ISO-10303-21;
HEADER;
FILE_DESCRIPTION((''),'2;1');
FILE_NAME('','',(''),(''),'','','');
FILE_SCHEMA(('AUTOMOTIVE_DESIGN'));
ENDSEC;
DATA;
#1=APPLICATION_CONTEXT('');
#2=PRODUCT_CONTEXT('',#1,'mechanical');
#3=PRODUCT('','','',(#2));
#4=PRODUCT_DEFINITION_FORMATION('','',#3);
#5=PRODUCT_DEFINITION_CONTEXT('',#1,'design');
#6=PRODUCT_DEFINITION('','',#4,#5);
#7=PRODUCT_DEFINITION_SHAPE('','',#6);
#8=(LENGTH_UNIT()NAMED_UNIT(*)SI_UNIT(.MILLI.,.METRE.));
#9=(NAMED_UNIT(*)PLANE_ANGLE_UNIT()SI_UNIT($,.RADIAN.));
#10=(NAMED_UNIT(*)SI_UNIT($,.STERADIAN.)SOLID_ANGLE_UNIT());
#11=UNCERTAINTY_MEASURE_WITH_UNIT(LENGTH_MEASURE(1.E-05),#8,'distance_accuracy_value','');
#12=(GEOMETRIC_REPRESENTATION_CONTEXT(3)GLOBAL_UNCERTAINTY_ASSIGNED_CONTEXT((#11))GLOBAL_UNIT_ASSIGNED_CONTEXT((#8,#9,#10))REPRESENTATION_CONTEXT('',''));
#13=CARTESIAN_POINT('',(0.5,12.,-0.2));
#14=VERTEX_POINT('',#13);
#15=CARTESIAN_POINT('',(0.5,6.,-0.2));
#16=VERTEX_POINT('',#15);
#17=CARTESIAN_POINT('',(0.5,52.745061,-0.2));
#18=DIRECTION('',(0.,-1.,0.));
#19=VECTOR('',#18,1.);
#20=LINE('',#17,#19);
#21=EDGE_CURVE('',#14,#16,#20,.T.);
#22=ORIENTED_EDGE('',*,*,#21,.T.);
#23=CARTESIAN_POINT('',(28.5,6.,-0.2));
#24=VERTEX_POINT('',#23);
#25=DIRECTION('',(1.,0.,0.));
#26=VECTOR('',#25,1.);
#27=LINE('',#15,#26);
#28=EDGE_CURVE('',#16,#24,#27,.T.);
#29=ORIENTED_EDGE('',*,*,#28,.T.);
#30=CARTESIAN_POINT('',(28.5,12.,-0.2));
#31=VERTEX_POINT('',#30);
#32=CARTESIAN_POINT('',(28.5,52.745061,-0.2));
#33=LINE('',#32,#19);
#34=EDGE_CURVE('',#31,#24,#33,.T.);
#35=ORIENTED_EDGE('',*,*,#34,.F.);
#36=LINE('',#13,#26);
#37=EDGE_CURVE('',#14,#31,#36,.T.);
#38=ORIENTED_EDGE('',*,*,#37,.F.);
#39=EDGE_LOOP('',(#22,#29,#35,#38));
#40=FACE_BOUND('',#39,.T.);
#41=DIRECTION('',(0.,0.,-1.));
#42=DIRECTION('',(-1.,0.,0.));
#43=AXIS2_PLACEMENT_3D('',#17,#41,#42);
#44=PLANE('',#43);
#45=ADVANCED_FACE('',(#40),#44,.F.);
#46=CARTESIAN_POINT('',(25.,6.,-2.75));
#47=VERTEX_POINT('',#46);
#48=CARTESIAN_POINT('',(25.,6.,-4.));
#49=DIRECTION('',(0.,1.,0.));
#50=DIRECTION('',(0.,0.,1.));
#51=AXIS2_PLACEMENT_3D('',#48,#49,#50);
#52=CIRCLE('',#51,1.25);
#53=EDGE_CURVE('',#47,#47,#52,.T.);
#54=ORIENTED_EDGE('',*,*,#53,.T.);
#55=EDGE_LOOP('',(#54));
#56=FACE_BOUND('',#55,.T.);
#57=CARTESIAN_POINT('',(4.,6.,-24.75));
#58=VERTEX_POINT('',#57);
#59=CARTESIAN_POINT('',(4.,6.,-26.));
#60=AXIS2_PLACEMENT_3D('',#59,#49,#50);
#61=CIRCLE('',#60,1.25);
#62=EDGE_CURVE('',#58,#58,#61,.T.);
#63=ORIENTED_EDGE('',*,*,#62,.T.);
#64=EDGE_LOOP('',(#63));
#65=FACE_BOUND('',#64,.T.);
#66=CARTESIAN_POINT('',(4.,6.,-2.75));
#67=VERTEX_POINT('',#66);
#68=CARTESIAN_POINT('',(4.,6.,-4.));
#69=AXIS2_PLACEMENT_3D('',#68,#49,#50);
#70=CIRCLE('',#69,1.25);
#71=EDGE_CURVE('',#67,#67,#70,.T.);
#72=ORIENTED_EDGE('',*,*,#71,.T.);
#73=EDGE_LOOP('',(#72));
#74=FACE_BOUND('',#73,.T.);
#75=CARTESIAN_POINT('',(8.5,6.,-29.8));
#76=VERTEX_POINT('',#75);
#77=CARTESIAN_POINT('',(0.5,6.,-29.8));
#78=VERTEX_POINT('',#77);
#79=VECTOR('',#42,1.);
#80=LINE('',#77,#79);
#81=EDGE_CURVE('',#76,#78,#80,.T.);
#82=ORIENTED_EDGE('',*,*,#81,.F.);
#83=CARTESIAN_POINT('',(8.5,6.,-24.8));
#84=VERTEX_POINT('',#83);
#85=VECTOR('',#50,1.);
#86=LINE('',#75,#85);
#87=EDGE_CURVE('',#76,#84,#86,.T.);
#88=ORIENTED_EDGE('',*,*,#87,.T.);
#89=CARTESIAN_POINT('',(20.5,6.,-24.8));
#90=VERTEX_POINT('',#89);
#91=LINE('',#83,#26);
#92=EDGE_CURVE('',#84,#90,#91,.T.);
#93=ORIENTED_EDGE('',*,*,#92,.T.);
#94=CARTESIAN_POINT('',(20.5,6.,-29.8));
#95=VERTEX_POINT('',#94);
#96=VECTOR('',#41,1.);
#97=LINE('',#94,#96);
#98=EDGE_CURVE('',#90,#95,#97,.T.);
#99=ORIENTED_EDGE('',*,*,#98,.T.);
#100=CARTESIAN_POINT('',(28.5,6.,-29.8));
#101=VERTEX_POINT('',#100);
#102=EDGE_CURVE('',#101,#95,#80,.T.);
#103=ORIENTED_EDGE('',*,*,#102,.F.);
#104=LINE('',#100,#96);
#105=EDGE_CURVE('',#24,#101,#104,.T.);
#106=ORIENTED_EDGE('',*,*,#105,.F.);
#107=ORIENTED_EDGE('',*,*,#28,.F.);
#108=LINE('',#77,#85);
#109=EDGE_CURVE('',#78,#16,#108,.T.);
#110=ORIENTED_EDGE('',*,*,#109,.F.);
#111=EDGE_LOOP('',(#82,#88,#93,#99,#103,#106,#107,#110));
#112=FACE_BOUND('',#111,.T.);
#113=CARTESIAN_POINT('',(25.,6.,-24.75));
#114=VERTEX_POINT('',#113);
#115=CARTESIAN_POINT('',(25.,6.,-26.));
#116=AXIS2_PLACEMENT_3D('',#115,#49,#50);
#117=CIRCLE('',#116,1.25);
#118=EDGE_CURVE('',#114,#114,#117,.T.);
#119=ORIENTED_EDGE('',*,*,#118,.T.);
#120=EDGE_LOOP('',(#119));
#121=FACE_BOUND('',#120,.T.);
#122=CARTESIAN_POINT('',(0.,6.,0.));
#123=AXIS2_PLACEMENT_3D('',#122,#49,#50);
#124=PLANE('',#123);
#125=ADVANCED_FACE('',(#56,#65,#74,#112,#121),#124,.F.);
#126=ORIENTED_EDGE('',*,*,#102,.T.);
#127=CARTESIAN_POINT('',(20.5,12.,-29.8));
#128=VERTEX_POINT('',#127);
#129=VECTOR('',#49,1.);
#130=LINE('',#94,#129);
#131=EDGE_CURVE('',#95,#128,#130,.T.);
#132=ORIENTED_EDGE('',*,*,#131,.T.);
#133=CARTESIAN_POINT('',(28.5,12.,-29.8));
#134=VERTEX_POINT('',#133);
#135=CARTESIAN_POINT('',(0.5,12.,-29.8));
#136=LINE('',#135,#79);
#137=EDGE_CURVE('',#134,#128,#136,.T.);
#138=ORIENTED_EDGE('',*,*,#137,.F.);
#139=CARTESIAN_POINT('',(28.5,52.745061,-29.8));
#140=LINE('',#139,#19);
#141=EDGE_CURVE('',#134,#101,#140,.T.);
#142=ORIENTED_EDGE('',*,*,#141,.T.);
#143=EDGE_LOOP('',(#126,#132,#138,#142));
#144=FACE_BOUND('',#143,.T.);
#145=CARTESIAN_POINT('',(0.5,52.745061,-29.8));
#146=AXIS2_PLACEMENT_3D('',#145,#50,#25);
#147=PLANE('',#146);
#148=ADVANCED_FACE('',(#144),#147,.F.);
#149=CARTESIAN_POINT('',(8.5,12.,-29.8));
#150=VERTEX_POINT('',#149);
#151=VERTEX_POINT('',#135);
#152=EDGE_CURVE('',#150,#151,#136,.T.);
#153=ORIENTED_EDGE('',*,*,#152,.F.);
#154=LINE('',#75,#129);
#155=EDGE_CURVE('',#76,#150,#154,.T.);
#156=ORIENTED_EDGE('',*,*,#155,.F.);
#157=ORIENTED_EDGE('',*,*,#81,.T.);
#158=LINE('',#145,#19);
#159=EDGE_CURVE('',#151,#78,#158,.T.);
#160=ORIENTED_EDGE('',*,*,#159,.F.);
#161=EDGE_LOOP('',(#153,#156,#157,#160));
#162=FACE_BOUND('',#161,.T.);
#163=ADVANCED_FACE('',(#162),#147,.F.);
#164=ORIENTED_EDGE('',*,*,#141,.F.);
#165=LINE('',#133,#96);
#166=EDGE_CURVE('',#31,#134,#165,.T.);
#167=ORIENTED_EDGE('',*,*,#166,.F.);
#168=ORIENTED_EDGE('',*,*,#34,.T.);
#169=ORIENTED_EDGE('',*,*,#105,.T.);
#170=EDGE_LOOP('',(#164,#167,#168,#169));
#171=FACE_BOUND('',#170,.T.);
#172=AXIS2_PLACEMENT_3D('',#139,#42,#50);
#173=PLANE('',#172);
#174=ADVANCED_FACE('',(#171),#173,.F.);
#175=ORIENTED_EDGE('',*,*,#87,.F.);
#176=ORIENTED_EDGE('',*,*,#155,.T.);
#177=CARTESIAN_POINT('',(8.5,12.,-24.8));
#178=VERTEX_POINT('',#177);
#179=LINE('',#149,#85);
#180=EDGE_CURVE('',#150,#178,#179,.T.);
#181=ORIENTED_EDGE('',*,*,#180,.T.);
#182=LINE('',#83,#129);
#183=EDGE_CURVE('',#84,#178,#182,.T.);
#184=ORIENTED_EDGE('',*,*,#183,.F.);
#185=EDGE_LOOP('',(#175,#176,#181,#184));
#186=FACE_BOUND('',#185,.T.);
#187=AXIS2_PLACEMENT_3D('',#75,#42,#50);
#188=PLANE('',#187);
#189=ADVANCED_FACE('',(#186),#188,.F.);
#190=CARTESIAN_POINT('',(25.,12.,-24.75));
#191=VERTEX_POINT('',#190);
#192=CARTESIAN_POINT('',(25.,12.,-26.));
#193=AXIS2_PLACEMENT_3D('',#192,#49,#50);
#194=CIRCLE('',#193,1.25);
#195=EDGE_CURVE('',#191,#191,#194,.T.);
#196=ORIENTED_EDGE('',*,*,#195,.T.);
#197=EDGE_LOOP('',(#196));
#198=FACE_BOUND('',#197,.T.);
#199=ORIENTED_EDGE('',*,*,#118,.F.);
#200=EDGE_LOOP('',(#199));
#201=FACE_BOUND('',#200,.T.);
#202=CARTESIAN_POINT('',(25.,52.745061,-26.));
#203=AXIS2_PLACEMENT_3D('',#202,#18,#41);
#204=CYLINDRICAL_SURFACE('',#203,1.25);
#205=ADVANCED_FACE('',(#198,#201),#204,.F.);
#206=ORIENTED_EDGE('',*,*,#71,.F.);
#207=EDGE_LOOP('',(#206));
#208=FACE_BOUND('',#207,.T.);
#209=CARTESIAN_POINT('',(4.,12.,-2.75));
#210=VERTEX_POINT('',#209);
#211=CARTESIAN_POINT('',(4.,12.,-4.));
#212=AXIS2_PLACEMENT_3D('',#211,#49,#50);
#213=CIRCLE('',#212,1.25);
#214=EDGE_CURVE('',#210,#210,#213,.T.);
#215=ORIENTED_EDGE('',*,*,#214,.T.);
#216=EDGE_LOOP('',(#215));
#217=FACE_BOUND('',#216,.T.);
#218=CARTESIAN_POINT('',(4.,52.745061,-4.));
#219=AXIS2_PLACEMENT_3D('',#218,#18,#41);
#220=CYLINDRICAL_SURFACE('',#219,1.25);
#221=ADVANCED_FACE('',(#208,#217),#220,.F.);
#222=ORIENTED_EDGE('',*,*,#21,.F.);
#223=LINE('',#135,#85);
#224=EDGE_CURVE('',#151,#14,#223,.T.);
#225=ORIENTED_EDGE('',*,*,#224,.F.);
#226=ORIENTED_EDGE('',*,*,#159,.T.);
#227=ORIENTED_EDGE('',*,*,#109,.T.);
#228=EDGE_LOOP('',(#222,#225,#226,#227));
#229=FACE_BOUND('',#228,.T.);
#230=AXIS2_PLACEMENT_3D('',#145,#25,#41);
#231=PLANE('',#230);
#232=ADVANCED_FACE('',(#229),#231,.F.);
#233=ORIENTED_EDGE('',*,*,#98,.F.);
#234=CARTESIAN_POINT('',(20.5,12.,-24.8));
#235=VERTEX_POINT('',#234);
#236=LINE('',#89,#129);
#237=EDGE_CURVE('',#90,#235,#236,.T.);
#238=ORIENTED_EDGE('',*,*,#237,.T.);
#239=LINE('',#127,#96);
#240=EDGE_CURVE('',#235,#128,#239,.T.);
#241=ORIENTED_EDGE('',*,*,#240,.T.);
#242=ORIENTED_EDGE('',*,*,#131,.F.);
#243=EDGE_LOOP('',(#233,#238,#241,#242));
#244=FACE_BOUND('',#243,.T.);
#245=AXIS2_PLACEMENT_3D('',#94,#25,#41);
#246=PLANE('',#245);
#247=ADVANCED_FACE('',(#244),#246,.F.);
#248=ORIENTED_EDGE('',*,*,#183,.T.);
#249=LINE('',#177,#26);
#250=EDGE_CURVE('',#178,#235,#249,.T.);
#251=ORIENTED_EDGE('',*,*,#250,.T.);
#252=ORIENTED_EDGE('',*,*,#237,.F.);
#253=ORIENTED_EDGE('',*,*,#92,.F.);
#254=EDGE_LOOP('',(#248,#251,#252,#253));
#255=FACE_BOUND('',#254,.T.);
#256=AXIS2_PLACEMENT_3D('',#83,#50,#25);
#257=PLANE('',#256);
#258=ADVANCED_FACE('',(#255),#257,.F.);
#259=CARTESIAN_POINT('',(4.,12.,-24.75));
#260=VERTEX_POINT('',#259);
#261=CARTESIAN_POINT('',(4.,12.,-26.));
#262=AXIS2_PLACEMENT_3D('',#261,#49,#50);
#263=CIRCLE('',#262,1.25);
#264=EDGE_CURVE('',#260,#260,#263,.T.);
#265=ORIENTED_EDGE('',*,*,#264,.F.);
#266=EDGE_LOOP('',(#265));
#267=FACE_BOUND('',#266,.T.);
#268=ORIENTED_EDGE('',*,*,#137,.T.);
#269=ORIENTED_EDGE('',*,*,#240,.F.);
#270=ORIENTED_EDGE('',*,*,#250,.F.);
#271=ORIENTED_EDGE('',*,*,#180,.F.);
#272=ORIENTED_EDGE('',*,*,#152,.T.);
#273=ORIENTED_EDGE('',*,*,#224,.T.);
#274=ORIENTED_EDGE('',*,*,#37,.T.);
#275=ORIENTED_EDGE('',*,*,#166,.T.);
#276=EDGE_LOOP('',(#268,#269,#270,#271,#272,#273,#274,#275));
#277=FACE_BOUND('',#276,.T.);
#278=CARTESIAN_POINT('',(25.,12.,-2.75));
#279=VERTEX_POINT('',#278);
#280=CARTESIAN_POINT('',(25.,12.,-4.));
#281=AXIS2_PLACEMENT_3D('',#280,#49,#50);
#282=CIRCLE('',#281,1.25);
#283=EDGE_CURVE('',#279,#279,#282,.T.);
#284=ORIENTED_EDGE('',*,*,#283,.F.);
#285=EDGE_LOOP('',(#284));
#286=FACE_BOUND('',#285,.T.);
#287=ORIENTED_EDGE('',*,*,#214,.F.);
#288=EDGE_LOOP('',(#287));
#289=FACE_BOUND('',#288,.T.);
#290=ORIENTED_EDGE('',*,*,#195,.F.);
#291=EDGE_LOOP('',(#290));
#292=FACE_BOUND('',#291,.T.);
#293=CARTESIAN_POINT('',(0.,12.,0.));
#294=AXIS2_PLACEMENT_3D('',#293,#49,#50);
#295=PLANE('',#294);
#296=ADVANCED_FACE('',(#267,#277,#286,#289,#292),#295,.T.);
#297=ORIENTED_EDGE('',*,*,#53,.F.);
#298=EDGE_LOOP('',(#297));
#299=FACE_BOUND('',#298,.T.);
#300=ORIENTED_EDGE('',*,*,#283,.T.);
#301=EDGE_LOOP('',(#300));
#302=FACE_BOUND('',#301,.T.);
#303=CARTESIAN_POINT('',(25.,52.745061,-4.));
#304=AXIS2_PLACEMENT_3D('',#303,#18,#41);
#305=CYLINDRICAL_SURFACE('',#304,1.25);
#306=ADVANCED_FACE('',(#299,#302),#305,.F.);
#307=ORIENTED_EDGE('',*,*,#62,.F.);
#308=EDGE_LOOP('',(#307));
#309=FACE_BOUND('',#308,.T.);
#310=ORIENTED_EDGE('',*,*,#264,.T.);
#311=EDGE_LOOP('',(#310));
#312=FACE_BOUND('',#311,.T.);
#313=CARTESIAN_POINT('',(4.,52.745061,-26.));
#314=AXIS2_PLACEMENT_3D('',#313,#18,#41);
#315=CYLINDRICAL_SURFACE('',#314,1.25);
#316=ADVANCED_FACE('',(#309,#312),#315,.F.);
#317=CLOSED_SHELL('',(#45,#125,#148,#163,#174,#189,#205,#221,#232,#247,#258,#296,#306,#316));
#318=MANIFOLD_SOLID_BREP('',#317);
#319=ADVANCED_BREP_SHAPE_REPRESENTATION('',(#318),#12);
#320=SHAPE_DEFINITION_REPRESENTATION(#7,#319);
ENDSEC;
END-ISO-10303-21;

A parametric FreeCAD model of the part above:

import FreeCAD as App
import Part
import Sketcher
Q = App.Units.Quantity


def add_polygon(sketch, points):
    """Adds a closed chain of lines whose ends are joined by coincident constraints."""
    first, n = sketch.GeometryCount, len(points)
    for a, b in zip(points, points[1:] + points[:1]):
        sketch.addGeometry(Part.LineSegment(App.Vector(*a, 0), App.Vector(*b, 0)), False)
    for i in range(n):
        sketch.addConstraint(Sketcher.Constraint("Coincident", first + i, 2, first + (i + 1) % n, 1))

doc = App.newDocument("Part")
body = doc.addObject("PartDesign::Body", "Body")

# Sketch on XZ plane
sketch1 = body.newObject("Sketcher::SketchObject", "Sketch")
sketch1.AttachmentSupport = (doc.getObject("XZ_Plane"), [""])
sketch1.MapMode = "FlatFace"
sketch1.AttachmentOffset = App.Placement(App.Vector(0, 0, -6), App.Rotation())
add_polygon(sketch1, [(0.5, -29.8), (0.5, -0.2), (28.5, -0.2), (28.5, -29.8)])  # lines 0-3
sketch1.addGeometry(Part.Circle(App.Vector(4, -4, 0), App.Vector(0, 0, 1), 1.2), False)  # 4
sketch1.addGeometry(Part.Circle(App.Vector(25, -4, 0), App.Vector(0, 0, 1), 1.2), False)  # 5
sketch1.addGeometry(Part.Circle(App.Vector(4, -26, 0), App.Vector(0, 0, 1), 1.2), False)  # 6
sketch1.addGeometry(Part.Circle(App.Vector(25, -26, 0), App.Vector(0, 0, 1), 1.2), False)  # 7
sketch1.addConstraint([
    Sketcher.Constraint("Vertical", 0),
    Sketcher.Constraint("Horizontal", 1),
    Sketcher.Constraint("Vertical", 2),
    Sketcher.Constraint("Horizontal", 3),
    Sketcher.Constraint("Equal", 4, 5),
    Sketcher.Constraint("Equal", 5, 6),
    Sketcher.Constraint("Equal", 6, 7),
    Sketcher.Constraint("Horizontal", 4, 3, 5, 3),
    Sketcher.Constraint("Horizontal", 6, 3, 7, 3),
    Sketcher.Constraint("Vertical", 4, 3, 6, 3),
    Sketcher.Constraint("Vertical", 5, 3, 7, 3),
    Sketcher.Constraint("Diameter", 4, Q("2.5 mm")),
    Sketcher.Constraint("DistanceX", 1, 1, 1, 2, Q("28 mm")),
    Sketcher.Constraint("DistanceY", 0, 1, 0, 2, Q("29.6 mm")),
    Sketcher.Constraint("DistanceX", -1, 1, 4, 3, Q("4 mm")),
    Sketcher.Constraint("DistanceY", 4, 3, -1, 1, Q("4 mm")),
    Sketcher.Constraint("DistanceX", -1, 1, 5, 3, Q("25 mm")),
    Sketcher.Constraint("DistanceY", 6, 3, -1, 1, Q("26 mm")),
    Sketcher.Constraint("DistanceX", -1, 1, 0, 2, Q("0.5 mm")),
    Sketcher.Constraint("DistanceY", 0, 2, -1, 1, Q("0.2 mm")),
])
pad1 = body.newObject("PartDesign::Pad", "Pad")
pad1.Profile = sketch1
pad1.Length = 6
pad1.Reversed = True

# Sketch on XZ plane
sketch2 = body.newObject("Sketcher::SketchObject", "Sketch001")
sketch2.AttachmentSupport = (doc.getObject("XZ_Plane"), [""])
sketch2.MapMode = "FlatFace"
sketch2.AttachmentOffset = App.Placement(App.Vector(0, 0, -12), App.Rotation())
add_polygon(sketch2, [(8, -30), (8, -25), (20, -25), (20, -30)])  # lines 0-3
sketch2.addConstraint([
    Sketcher.Constraint("Vertical", 0),
    Sketcher.Constraint("Horizontal", 1),
    Sketcher.Constraint("Vertical", 2),
    Sketcher.Constraint("Horizontal", 3),
    Sketcher.Constraint("DistanceX", 1, 1, 1, 2, Q("12 mm")),
    Sketcher.Constraint("DistanceY", 0, 1, 0, 2, Q("5 mm")),
    Sketcher.Constraint("DistanceX", -1, 1, 0, 2, Q("8.5 mm")),
    Sketcher.Constraint("DistanceY", 0, 2, -1, 1, Q("24.8 mm")),
])
pocket1 = body.newObject("PartDesign::Pocket", "Pocket")
pocket1.Profile = sketch2
pocket1.Type = "ThroughAll"
pocket1.Reversed = True

doc.recompute()
